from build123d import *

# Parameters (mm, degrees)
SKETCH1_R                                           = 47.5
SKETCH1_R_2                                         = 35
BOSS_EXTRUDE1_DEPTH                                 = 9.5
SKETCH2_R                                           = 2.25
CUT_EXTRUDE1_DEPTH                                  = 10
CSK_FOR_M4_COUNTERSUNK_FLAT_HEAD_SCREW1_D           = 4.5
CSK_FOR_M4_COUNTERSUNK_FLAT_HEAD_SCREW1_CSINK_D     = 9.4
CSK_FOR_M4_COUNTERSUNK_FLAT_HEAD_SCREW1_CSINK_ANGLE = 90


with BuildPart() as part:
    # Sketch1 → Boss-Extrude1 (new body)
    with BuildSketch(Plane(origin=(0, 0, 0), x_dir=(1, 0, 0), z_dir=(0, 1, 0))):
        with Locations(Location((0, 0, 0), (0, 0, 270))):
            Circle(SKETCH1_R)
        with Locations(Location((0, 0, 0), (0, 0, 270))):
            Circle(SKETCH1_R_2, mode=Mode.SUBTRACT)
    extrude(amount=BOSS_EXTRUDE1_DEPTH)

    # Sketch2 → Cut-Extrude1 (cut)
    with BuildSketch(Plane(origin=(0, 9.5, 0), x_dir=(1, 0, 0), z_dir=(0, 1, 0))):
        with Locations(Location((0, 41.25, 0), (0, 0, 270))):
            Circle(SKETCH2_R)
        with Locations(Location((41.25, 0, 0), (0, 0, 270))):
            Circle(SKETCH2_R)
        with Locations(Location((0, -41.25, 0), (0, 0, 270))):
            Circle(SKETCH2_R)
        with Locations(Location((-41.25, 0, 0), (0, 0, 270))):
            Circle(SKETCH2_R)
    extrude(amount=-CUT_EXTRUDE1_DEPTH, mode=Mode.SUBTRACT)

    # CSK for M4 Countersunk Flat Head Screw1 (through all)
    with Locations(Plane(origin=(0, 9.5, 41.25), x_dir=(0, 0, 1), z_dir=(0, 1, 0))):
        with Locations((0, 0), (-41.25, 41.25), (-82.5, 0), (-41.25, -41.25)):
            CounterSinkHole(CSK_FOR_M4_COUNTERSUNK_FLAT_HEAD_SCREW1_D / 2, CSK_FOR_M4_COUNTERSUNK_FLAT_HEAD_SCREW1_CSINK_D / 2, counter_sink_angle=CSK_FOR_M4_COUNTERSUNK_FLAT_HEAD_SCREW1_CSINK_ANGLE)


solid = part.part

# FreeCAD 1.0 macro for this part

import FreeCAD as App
import Part
import Sketcher

doc = App.newDocument("Part")
body = doc.addObject("PartDesign::Body", "Body")

# Sketch on XZ plane
sketch1 = body.newObject("Sketcher::SketchObject", "Sketch")
sketch1.AttachmentSupport = (doc.getObject("XZ_Plane"), [""])
sketch1.MapMode = "FlatFace"
sketch1.addGeometry([
    Part.Circle(App.Vector(0, 0, 0), App.Vector(0, 0, 1), 48),
    Part.Circle(App.Vector(0, 0, 0), App.Vector(0, 0, 1), 35),
], False)
sketch1.addConstraint([
    Sketcher.Constraint("Coincident", 0, 3, -1, 1),
    Sketcher.Constraint("Coincident", 1, 3, -1, 1),
    Sketcher.Constraint("Diameter", 0, 95.0),
    Sketcher.Constraint("Diameter", 1, 70.0),
])
pad1 = body.newObject("PartDesign::Pad", "Pad")
pad1.Profile = sketch1
pad1.Length = 9.5
pad1.Reversed = True

# Sketch on XZ plane
sketch2 = body.newObject("Sketcher::SketchObject", "Sketch001")
sketch2.AttachmentSupport = (doc.getObject("XZ_Plane"), [""])
sketch2.MapMode = "FlatFace"
sketch2.AttachmentOffset = App.Placement(App.Vector(0, 0, -9.5), App.Rotation())
sketch2.addGeometry([
    Part.Circle(App.Vector(0, -41.2, 0), App.Vector(0, 0, 1), 2.2),
    Part.Circle(App.Vector(41.2, 0, 0), App.Vector(0, 0, 1), 2.2),
    Part.Circle(App.Vector(0, 41.2, 0), App.Vector(0, 0, 1), 2.2),
    Part.Circle(App.Vector(-41.2, 0, 0), App.Vector(0, 0, 1), 2.2),
], False)
sketch2.addConstraint([
    Sketcher.Constraint("Equal", 0, 1),
    Sketcher.Constraint("Equal", 1, 2),
    Sketcher.Constraint("Equal", 2, 3),
    Sketcher.Constraint("Symmetric", 0, 3, 2, 3, -1, 1),
    Sketcher.Constraint("Symmetric", 1, 3, 3, 3, -1, 1),
    Sketcher.Constraint("PointOnObject", 0, 3, -2),
    Sketcher.Constraint("PointOnObject", 1, 3, -1),
    Sketcher.Constraint("Diameter", 0, 4.5),
    Sketcher.Constraint("DistanceY", 0, 3, 2, 3, 82.5),
    Sketcher.Constraint("DistanceX", 3, 3, 1, 3, 82.5),
])
pocket1 = body.newObject("PartDesign::Pocket", "Pocket")
pocket1.Profile = sketch2
pocket1.Length = 10
pocket1.Reversed = True

# Sketch on XZ plane
sketch3 = body.newObject("Sketcher::SketchObject", "Sketch002")
sketch3.AttachmentSupport = (doc.getObject("XZ_Plane"), [""])
sketch3.MapMode = "FlatFace"
sketch3.AttachmentOffset = App.Placement(App.Vector(0, 0, -9.5), App.Rotation())
sketch3.addGeometry([
    Part.Circle(App.Vector(0, 41.2, 0), App.Vector(0, 0, 1), 2.2),
    Part.Circle(App.Vector(41.2, 0, 0), App.Vector(0, 0, 1), 2.2),
    Part.Circle(App.Vector(0, -41.2, 0), App.Vector(0, 0, 1), 2.2),
    Part.Circle(App.Vector(-41.2, 0, 0), App.Vector(0, 0, 1), 2.2),
], False)
sketch3.addConstraint([
    Sketcher.Constraint("Equal", 0, 1),
    Sketcher.Constraint("Equal", 1, 2),
    Sketcher.Constraint("Equal", 2, 3),
    Sketcher.Constraint("Symmetric", 0, 3, 2, 3, -1, 1),
    Sketcher.Constraint("Symmetric", 1, 3, 3, 3, -1, 1),
    Sketcher.Constraint("PointOnObject", 0, 3, -2),
    Sketcher.Constraint("PointOnObject", 1, 3, -1),
    Sketcher.Constraint("Diameter", 0, 4.5),
    Sketcher.Constraint("DistanceY", 2, 3, 0, 3, 82.5),
    Sketcher.Constraint("DistanceX", 3, 3, 1, 3, 82.5),
])
doc.recompute()
hole = body.newObject("PartDesign::Hole", "Hole")
hole.Profile = sketch3
hole.ThreadType = "None"
hole.Diameter = 4.5
hole.DepthType = "ThroughAll"
hole.HoleCutType = "Countersink"
hole.HoleCutDiameter = 9.4
hole.HoleCutCountersinkAngle = 90
hole.Reversed = True

doc.recompute()
